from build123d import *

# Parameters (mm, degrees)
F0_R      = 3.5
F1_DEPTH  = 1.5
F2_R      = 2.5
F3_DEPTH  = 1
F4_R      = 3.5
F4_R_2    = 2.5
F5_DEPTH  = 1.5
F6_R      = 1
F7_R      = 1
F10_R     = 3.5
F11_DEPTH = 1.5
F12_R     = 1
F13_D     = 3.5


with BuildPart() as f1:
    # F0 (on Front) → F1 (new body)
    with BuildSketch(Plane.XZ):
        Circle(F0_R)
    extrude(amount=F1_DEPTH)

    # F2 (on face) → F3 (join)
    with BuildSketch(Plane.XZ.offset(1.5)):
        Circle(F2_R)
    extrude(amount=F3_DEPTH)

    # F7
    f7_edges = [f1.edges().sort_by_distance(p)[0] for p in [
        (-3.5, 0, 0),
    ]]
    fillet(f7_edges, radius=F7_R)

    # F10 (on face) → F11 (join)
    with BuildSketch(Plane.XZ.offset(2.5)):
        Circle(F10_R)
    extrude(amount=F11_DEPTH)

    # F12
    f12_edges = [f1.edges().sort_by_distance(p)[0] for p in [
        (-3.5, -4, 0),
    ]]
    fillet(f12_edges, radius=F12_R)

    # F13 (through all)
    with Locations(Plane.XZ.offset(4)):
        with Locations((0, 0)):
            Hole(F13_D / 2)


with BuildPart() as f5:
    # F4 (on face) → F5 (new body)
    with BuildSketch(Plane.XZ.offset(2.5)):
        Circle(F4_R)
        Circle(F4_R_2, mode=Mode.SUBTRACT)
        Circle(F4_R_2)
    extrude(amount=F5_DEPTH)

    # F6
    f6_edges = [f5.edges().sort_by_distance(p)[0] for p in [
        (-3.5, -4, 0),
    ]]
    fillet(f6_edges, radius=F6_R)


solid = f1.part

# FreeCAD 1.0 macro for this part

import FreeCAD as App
import Part
import Sketcher
from FreeCAD import Vector


def edges_at(feature, points):
    """Names of the edges that pass closest to the given points."""
    edges = feature.Shape.Edges
    near = lambda p: min(range(len(edges)), key=lambda i: edges[i].distToShape(Part.Vertex(*p))[0])
    return sorted({f"Edge{near(p) + 1}" for p in points})

doc = App.newDocument("Part")
params = doc.addObject("Spreadsheet::Sheet", "Params")
for row, (alias, value) in enumerate([
    ("sketch1_diameter", "7 mm"),
    ("pad1_length", "1.5 mm"),
    ("sketch2_diameter", "5 mm"),
    ("pad2_length", "1 mm"),
    ("fillet_radius", "1 mm"),
    ("sketch3_diameter", "7 mm"),
    ("pad3_length", "1.5 mm"),
    ("fillet2_radius", "1 mm"),
    ("sketch4_diameter", "3.5 mm"),
    ("hole_diameter", "3.5 mm"),
    ("sketch5_diameter", "7 mm"),
    ("pad4_length", "1.5 mm"),
    ("fillet3_radius", "1 mm"),
], start=1):
    params.set(f"A{row}", alias)
    params.set(f"B{row}", "=" + value)
    params.setAlias(f"B{row}", alias)

body = doc.addObject("PartDesign::Body", "Body")

# Sketch on XZ plane
sketch1 = body.newObject("Sketcher::SketchObject", "Sketch")
sketch1.AttachmentSupport = (doc.getObject("XZ_Plane"), [""])
sketch1.MapMode = "FlatFace"
sketch1.addGeometry(Part.Circle(Vector(0, 0, 0), Vector(0, 0, 1), 3.5), False)
sketch1.addConstraint([
    Sketcher.Constraint("Coincident", 0, 3, -1, 1),
    Sketcher.Constraint("Diameter", 0, 7.0),
])
sketch1.setExpression("Constraints[1]", "Params.sketch1_diameter")
pad1 = body.newObject("PartDesign::Pad", "Pad")
pad1.Profile = sketch1
pad1.setExpression("Length", "Params.pad1_length")

# Sketch on XZ plane
sketch2 = body.newObject("Sketcher::SketchObject", "Sketch001")
sketch2.AttachmentSupport = (doc.getObject("XZ_Plane"), [""])
sketch2.MapMode = "FlatFace"
sketch2.AttachmentOffset = App.Placement(Vector(0, 0, 1.5), App.Rotation())
sketch2.addGeometry(Part.Circle(Vector(0, 0, 0), Vector(0, 0, 1), 2.5), False)
sketch2.addConstraint([
    Sketcher.Constraint("Coincident", 0, 3, -1, 1),
    Sketcher.Constraint("Diameter", 0, 5.0),
])
sketch2.setExpression("Constraints[1]", "Params.sketch2_diameter")
pad2 = body.newObject("PartDesign::Pad", "Pad001")
pad2.Profile = sketch2
pad2.setExpression("Length", "Params.pad2_length")
doc.recompute()

fillet = body.newObject("PartDesign::Fillet", "Fillet")
fillet.Base = (pad2, edges_at(pad2, [(-3.5, 0, 0)]))
fillet.setExpression("Radius", "Params.fillet_radius")

# Sketch on XZ plane
sketch3 = body.newObject("Sketcher::SketchObject", "Sketch002")
sketch3.AttachmentSupport = (doc.getObject("XZ_Plane"), [""])
sketch3.MapMode = "FlatFace"
sketch3.AttachmentOffset = App.Placement(Vector(0, 0, 2.5), App.Rotation())
sketch3.addGeometry(Part.Circle(Vector(0, 0, 0), Vector(0, 0, 1), 3.5), False)
sketch3.addConstraint([
    Sketcher.Constraint("Coincident", 0, 3, -1, 1),
    Sketcher.Constraint("Diameter", 0, 7.0),
])
sketch3.setExpression("Constraints[1]", "Params.sketch3_diameter")
pad3 = body.newObject("PartDesign::Pad", "Pad002")
pad3.Profile = sketch3
pad3.setExpression("Length", "Params.pad3_length")
doc.recompute()

fillet2 = body.newObject("PartDesign::Fillet", "Fillet001")
fillet2.Base = (pad3, edges_at(pad3, [(-3.5, -4, 0)]))
fillet2.setExpression("Radius", "Params.fillet2_radius")

# Sketch on XZ plane
sketch4 = body.newObject("Sketcher::SketchObject", "Sketch003")
sketch4.AttachmentSupport = (doc.getObject("XZ_Plane"), [""])
sketch4.MapMode = "FlatFace"
sketch4.AttachmentOffset = App.Placement(Vector(0, 0, 4), App.Rotation())
sketch4.addGeometry(Part.Circle(Vector(0, 0, 0), Vector(0, 0, 1), 1.8), False)
sketch4.addConstraint([
    Sketcher.Constraint("Coincident", 0, 3, -1, 1),
    Sketcher.Constraint("Diameter", 0, 3.5),
])
sketch4.setExpression("Constraints[1]", "Params.sketch4_diameter")
doc.recompute()
hole = body.newObject("PartDesign::Hole", "Hole")
hole.Profile = sketch4
hole.ThreadType = "None"
hole.setExpression("Diameter", "Params.hole_diameter")
hole.DepthType = "ThroughAll"
body2 = doc.addObject("PartDesign::Body", "Body001")

# Sketch on XZ plane
sketch5 = body2.newObject("Sketcher::SketchObject", "Sketch004")
sketch5.AttachmentSupport = (doc.getObject("XZ_Plane001"), [""])
sketch5.MapMode = "FlatFace"
sketch5.AttachmentOffset = App.Placement(Vector(0, 0, 2.5), App.Rotation())
sketch5.addGeometry(Part.Circle(Vector(0, 0, 0), Vector(0, 0, 1), 3.5), False)
sketch5.addConstraint([
    Sketcher.Constraint("Coincident", 0, 3, -1, 1),
    Sketcher.Constraint("Diameter", 0, 7.0),
])
sketch5.setExpression("Constraints[1]", "Params.sketch5_diameter")
pad4 = body2.newObject("PartDesign::Pad", "Pad003")
pad4.Profile = sketch5
pad4.setExpression("Length", "Params.pad4_length")
doc.recompute()

fillet3 = body2.newObject("PartDesign::Fillet", "Fillet002")
fillet3.Base = (pad4, edges_at(pad4, [(-3.5, -4, 0)]))
fillet3.setExpression("Radius", "Params.fillet3_radius")
body2.Visibility = False

doc.recompute()
